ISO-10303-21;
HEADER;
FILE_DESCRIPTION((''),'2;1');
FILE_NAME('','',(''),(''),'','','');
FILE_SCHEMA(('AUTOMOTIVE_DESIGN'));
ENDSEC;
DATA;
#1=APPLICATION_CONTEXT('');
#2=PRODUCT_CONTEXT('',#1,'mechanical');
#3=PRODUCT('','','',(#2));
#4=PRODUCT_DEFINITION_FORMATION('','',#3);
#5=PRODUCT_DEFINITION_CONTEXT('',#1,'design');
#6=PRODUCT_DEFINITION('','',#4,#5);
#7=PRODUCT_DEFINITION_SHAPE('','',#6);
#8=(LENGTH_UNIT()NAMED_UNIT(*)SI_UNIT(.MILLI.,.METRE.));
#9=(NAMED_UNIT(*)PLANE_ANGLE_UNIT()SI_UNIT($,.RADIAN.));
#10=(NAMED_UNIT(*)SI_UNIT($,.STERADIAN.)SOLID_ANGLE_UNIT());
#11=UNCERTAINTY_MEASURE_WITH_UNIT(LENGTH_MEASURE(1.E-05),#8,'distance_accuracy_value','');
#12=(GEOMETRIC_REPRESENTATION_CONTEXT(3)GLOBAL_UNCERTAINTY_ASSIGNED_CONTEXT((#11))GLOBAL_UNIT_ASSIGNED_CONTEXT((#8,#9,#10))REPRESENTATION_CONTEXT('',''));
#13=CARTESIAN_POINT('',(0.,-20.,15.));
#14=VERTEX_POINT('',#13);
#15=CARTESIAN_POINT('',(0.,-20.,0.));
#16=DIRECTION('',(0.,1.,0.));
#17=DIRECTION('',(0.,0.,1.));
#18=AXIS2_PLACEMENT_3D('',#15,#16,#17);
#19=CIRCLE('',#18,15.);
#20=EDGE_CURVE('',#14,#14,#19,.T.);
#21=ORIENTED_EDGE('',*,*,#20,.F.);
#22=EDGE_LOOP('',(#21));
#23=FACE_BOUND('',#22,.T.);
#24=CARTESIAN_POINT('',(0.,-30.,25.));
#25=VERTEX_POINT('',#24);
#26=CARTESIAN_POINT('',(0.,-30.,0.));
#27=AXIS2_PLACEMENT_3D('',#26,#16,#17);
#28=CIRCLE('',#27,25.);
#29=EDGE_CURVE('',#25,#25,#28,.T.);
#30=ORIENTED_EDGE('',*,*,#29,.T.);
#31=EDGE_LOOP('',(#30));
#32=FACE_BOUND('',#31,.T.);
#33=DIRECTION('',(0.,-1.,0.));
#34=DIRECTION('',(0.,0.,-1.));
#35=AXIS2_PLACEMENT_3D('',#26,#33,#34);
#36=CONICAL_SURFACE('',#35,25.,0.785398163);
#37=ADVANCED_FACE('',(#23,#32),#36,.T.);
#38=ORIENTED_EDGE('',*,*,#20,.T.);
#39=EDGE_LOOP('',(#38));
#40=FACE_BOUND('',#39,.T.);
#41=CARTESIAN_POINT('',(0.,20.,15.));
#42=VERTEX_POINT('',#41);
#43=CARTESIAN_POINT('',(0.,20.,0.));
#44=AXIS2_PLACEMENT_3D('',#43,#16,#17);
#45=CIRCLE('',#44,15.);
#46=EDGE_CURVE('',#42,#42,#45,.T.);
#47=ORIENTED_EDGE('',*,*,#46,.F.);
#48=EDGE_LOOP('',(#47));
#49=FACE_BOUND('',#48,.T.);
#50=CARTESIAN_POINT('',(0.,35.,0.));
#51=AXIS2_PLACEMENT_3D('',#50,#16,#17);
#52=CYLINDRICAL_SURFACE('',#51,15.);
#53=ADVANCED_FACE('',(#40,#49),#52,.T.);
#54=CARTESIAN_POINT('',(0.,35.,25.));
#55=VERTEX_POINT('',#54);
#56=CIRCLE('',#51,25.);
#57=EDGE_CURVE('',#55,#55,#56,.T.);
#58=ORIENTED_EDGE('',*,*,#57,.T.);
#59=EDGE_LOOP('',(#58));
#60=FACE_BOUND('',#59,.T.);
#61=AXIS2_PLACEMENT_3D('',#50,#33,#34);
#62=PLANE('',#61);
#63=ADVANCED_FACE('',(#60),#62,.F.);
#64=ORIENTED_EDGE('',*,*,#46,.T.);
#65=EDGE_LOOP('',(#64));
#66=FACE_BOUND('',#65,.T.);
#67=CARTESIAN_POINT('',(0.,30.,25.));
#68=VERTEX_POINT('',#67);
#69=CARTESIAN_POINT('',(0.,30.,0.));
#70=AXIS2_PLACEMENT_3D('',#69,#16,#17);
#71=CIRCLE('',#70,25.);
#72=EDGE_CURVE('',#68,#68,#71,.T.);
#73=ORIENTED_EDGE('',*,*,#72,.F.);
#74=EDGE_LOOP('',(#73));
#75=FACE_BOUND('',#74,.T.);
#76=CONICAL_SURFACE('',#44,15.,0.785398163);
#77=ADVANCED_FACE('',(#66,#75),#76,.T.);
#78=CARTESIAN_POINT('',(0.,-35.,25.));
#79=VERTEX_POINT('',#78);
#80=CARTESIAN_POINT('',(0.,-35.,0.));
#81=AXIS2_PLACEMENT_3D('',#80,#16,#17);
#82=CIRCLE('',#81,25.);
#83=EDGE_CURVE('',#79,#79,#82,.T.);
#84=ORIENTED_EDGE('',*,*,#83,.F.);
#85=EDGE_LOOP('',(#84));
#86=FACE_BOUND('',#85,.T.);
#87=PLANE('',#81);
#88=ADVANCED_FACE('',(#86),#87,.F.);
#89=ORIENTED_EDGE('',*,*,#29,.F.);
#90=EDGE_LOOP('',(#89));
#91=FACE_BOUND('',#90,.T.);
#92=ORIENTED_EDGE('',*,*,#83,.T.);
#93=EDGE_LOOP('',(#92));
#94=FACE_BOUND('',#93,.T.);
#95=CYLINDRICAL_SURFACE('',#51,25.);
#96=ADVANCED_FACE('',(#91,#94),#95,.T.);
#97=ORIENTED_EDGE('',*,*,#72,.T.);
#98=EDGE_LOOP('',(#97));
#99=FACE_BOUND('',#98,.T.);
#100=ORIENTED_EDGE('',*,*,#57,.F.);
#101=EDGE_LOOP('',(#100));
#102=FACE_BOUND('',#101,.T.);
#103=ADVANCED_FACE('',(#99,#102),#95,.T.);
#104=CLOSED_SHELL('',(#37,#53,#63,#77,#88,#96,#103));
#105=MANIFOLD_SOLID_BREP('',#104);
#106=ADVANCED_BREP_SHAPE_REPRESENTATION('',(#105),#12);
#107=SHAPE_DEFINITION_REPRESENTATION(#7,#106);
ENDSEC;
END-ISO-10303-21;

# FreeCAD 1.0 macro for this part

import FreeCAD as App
import Part
import Sketcher
Q = App.Units.Quantity


def add_polygon(sketch, points):
    """Adds a closed chain of lines whose ends are joined by coincident constraints."""
    first, n = sketch.GeometryCount, len(points)
    for a, b in zip(points, points[1:] + points[:1]):
        sketch.addGeometry(Part.LineSegment(App.Vector(*a, 0), App.Vector(*b, 0)), False)
    for i in range(n):
        sketch.addConstraint(Sketcher.Constraint("Coincident", first + i, 2, first + (i + 1) % n, 1))

doc = App.newDocument("Part")
body = doc.addObject("PartDesign::Body", "Body")

# Sketch on XY plane
sketch1 = body.newObject("Sketcher::SketchObject", "Sketch")
sketch1.AttachmentSupport = (doc.getObject("XY_Plane"), [""])
sketch1.MapMode = "FlatFace"
add_polygon(sketch1, [(25, 35), (0, 35), (0, -35), (25, -35), (25, -30), (15, -20), (15, 20), (25, 30)])  # lines 0-7
sketch1.addConstraint([
    Sketcher.Constraint("Horizontal", 0),
    Sketcher.Constraint("Vertical", 1),
    Sketcher.Constraint("Horizontal", 2),
    Sketcher.Constraint("Vertical", 3),
    Sketcher.Constraint("Vertical", 5),
    Sketcher.Constraint("Vertical", 7),
    Sketcher.Constraint("Symmetric", 0, 2, 1, 2, -1, 1),
    Sketcher.Constraint("Symmetric", 3, 2, 6, 2, -1),
    Sketcher.Constraint("Perpendicular", 4, 6),
    Sketcher.Constraint("Equal", 4, 6),
    Sketcher.Constraint("DistanceX", 0, 2, 0, 1, Q("25 mm")),
    Sketcher.Constraint("DistanceY", 1, 2, 1, 1, Q("70 mm")),
    Sketcher.Constraint("DistanceY", 3, 1, 3, 2, Q("5 mm")),
    Sketcher.Constraint("DistanceY", 5, 1, 5, 2, Q("40 mm")),
])
revolution = body.newObject("PartDesign::Revolution", "Revolution")
revolution.Profile = sketch1
revolution.ReferenceAxis = (sketch1, ["V_Axis"])
revolution.Angle = 360

doc.recompute()
